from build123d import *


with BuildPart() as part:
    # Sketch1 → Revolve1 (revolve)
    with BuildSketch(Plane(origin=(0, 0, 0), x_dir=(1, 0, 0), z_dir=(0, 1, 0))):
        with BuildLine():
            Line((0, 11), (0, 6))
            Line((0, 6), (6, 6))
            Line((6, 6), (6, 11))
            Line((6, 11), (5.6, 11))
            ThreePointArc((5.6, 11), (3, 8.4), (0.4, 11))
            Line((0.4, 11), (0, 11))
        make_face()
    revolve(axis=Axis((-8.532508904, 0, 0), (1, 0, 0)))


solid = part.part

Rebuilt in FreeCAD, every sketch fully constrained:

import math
import FreeCAD as App
import Part
import Sketcher

doc = App.newDocument("Part")
params = doc.addObject("Spreadsheet::Sheet", "Params")
for row, (alias, value) in enumerate([
    ("sketch1_radius", "2.6 mm"),
    ("sketch1_width", "6 mm"),
    ("sketch1_height", "5 mm"),
    ("revolution_angle", "360 deg"),
], start=1):
    params.set(f"A{row}", alias)
    params.set(f"B{row}", "=" + value)
    params.setAlias(f"B{row}", alias)

body = doc.addObject("PartDesign::Body", "Body")

# Sketch on XZ plane
sketch1 = body.newObject("Sketcher::SketchObject", "Sketch")
sketch1.AttachmentSupport = (doc.getObject("XZ_Plane"), [""])
sketch1.MapMode = "FlatFace"
sketch1.addGeometry([
    Part.LineSegment(App.Vector(0, -11, 0), App.Vector(0, -6, 0)),  # 0
    Part.LineSegment(App.Vector(0, -6, 0), App.Vector(6, -6, 0)),  # 1
    Part.LineSegment(App.Vector(6, -6, 0), App.Vector(6, -11, 0)),  # 2
    Part.LineSegment(App.Vector(6, -11, 0), App.Vector(5.6, -11, 0)),  # 3
    Part.ArcOfCircle(Part.Circle(App.Vector(3, -11, 0), App.Vector(0, 0, 1), 2.6), math.radians(0), math.radians(180)),  # 4
    Part.LineSegment(App.Vector(0.4, -11, 0), App.Vector(0, -11, 0)),  # 5
], False)
sketch1.addConstraint([
    Sketcher.Constraint("Coincident", 0, 2, 1, 1),
    Sketcher.Constraint("Coincident", 1, 2, 2, 1),
    Sketcher.Constraint("Coincident", 2, 2, 3, 1),
    Sketcher.Constraint("Coincident", 3, 2, 4, 1),
    Sketcher.Constraint("Coincident", 4, 2, 5, 1),
    Sketcher.Constraint("Coincident", 5, 2, 0, 1),
    Sketcher.Constraint("Vertical", 0),
    Sketcher.Constraint("Horizontal", 1),
    Sketcher.Constraint("Vertical", 2),
    Sketcher.Constraint("Horizontal", 3),
    Sketcher.Constraint("Horizontal", 5),
    Sketcher.Constraint("PointOnObject", 0, 2, -2),
    Sketcher.Constraint("Horizontal", 4, 3, 2, 2),
    Sketcher.Constraint("Horizontal", 3, 2, 4, 2),
    Sketcher.Constraint("Equal", 3, 5),
    Sketcher.Constraint("Radius", 4, 2.6),
    Sketcher.Constraint("DistanceX", 1, 1, 1, 2, 6.0),
    Sketcher.Constraint("DistanceY", 0, 1, 0, 2, 5.0),
    Sketcher.Constraint("DistanceY", 4, 3, -1, 1, 11.0),
])
sketch1.setExpression("Constraints[15]", "Params.sketch1_radius")
sketch1.setExpression("Constraints[16]", "Params.sketch1_width")
sketch1.setExpression("Constraints[17]", "Params.sketch1_height")
revolution = body.newObject("PartDesign::Revolution", "Revolution")
revolution.Profile = sketch1
revolution.ReferenceAxis = (sketch1, ["H_Axis"])
revolution.setExpression("Angle", "Params.revolution_angle")

doc.recompute()
